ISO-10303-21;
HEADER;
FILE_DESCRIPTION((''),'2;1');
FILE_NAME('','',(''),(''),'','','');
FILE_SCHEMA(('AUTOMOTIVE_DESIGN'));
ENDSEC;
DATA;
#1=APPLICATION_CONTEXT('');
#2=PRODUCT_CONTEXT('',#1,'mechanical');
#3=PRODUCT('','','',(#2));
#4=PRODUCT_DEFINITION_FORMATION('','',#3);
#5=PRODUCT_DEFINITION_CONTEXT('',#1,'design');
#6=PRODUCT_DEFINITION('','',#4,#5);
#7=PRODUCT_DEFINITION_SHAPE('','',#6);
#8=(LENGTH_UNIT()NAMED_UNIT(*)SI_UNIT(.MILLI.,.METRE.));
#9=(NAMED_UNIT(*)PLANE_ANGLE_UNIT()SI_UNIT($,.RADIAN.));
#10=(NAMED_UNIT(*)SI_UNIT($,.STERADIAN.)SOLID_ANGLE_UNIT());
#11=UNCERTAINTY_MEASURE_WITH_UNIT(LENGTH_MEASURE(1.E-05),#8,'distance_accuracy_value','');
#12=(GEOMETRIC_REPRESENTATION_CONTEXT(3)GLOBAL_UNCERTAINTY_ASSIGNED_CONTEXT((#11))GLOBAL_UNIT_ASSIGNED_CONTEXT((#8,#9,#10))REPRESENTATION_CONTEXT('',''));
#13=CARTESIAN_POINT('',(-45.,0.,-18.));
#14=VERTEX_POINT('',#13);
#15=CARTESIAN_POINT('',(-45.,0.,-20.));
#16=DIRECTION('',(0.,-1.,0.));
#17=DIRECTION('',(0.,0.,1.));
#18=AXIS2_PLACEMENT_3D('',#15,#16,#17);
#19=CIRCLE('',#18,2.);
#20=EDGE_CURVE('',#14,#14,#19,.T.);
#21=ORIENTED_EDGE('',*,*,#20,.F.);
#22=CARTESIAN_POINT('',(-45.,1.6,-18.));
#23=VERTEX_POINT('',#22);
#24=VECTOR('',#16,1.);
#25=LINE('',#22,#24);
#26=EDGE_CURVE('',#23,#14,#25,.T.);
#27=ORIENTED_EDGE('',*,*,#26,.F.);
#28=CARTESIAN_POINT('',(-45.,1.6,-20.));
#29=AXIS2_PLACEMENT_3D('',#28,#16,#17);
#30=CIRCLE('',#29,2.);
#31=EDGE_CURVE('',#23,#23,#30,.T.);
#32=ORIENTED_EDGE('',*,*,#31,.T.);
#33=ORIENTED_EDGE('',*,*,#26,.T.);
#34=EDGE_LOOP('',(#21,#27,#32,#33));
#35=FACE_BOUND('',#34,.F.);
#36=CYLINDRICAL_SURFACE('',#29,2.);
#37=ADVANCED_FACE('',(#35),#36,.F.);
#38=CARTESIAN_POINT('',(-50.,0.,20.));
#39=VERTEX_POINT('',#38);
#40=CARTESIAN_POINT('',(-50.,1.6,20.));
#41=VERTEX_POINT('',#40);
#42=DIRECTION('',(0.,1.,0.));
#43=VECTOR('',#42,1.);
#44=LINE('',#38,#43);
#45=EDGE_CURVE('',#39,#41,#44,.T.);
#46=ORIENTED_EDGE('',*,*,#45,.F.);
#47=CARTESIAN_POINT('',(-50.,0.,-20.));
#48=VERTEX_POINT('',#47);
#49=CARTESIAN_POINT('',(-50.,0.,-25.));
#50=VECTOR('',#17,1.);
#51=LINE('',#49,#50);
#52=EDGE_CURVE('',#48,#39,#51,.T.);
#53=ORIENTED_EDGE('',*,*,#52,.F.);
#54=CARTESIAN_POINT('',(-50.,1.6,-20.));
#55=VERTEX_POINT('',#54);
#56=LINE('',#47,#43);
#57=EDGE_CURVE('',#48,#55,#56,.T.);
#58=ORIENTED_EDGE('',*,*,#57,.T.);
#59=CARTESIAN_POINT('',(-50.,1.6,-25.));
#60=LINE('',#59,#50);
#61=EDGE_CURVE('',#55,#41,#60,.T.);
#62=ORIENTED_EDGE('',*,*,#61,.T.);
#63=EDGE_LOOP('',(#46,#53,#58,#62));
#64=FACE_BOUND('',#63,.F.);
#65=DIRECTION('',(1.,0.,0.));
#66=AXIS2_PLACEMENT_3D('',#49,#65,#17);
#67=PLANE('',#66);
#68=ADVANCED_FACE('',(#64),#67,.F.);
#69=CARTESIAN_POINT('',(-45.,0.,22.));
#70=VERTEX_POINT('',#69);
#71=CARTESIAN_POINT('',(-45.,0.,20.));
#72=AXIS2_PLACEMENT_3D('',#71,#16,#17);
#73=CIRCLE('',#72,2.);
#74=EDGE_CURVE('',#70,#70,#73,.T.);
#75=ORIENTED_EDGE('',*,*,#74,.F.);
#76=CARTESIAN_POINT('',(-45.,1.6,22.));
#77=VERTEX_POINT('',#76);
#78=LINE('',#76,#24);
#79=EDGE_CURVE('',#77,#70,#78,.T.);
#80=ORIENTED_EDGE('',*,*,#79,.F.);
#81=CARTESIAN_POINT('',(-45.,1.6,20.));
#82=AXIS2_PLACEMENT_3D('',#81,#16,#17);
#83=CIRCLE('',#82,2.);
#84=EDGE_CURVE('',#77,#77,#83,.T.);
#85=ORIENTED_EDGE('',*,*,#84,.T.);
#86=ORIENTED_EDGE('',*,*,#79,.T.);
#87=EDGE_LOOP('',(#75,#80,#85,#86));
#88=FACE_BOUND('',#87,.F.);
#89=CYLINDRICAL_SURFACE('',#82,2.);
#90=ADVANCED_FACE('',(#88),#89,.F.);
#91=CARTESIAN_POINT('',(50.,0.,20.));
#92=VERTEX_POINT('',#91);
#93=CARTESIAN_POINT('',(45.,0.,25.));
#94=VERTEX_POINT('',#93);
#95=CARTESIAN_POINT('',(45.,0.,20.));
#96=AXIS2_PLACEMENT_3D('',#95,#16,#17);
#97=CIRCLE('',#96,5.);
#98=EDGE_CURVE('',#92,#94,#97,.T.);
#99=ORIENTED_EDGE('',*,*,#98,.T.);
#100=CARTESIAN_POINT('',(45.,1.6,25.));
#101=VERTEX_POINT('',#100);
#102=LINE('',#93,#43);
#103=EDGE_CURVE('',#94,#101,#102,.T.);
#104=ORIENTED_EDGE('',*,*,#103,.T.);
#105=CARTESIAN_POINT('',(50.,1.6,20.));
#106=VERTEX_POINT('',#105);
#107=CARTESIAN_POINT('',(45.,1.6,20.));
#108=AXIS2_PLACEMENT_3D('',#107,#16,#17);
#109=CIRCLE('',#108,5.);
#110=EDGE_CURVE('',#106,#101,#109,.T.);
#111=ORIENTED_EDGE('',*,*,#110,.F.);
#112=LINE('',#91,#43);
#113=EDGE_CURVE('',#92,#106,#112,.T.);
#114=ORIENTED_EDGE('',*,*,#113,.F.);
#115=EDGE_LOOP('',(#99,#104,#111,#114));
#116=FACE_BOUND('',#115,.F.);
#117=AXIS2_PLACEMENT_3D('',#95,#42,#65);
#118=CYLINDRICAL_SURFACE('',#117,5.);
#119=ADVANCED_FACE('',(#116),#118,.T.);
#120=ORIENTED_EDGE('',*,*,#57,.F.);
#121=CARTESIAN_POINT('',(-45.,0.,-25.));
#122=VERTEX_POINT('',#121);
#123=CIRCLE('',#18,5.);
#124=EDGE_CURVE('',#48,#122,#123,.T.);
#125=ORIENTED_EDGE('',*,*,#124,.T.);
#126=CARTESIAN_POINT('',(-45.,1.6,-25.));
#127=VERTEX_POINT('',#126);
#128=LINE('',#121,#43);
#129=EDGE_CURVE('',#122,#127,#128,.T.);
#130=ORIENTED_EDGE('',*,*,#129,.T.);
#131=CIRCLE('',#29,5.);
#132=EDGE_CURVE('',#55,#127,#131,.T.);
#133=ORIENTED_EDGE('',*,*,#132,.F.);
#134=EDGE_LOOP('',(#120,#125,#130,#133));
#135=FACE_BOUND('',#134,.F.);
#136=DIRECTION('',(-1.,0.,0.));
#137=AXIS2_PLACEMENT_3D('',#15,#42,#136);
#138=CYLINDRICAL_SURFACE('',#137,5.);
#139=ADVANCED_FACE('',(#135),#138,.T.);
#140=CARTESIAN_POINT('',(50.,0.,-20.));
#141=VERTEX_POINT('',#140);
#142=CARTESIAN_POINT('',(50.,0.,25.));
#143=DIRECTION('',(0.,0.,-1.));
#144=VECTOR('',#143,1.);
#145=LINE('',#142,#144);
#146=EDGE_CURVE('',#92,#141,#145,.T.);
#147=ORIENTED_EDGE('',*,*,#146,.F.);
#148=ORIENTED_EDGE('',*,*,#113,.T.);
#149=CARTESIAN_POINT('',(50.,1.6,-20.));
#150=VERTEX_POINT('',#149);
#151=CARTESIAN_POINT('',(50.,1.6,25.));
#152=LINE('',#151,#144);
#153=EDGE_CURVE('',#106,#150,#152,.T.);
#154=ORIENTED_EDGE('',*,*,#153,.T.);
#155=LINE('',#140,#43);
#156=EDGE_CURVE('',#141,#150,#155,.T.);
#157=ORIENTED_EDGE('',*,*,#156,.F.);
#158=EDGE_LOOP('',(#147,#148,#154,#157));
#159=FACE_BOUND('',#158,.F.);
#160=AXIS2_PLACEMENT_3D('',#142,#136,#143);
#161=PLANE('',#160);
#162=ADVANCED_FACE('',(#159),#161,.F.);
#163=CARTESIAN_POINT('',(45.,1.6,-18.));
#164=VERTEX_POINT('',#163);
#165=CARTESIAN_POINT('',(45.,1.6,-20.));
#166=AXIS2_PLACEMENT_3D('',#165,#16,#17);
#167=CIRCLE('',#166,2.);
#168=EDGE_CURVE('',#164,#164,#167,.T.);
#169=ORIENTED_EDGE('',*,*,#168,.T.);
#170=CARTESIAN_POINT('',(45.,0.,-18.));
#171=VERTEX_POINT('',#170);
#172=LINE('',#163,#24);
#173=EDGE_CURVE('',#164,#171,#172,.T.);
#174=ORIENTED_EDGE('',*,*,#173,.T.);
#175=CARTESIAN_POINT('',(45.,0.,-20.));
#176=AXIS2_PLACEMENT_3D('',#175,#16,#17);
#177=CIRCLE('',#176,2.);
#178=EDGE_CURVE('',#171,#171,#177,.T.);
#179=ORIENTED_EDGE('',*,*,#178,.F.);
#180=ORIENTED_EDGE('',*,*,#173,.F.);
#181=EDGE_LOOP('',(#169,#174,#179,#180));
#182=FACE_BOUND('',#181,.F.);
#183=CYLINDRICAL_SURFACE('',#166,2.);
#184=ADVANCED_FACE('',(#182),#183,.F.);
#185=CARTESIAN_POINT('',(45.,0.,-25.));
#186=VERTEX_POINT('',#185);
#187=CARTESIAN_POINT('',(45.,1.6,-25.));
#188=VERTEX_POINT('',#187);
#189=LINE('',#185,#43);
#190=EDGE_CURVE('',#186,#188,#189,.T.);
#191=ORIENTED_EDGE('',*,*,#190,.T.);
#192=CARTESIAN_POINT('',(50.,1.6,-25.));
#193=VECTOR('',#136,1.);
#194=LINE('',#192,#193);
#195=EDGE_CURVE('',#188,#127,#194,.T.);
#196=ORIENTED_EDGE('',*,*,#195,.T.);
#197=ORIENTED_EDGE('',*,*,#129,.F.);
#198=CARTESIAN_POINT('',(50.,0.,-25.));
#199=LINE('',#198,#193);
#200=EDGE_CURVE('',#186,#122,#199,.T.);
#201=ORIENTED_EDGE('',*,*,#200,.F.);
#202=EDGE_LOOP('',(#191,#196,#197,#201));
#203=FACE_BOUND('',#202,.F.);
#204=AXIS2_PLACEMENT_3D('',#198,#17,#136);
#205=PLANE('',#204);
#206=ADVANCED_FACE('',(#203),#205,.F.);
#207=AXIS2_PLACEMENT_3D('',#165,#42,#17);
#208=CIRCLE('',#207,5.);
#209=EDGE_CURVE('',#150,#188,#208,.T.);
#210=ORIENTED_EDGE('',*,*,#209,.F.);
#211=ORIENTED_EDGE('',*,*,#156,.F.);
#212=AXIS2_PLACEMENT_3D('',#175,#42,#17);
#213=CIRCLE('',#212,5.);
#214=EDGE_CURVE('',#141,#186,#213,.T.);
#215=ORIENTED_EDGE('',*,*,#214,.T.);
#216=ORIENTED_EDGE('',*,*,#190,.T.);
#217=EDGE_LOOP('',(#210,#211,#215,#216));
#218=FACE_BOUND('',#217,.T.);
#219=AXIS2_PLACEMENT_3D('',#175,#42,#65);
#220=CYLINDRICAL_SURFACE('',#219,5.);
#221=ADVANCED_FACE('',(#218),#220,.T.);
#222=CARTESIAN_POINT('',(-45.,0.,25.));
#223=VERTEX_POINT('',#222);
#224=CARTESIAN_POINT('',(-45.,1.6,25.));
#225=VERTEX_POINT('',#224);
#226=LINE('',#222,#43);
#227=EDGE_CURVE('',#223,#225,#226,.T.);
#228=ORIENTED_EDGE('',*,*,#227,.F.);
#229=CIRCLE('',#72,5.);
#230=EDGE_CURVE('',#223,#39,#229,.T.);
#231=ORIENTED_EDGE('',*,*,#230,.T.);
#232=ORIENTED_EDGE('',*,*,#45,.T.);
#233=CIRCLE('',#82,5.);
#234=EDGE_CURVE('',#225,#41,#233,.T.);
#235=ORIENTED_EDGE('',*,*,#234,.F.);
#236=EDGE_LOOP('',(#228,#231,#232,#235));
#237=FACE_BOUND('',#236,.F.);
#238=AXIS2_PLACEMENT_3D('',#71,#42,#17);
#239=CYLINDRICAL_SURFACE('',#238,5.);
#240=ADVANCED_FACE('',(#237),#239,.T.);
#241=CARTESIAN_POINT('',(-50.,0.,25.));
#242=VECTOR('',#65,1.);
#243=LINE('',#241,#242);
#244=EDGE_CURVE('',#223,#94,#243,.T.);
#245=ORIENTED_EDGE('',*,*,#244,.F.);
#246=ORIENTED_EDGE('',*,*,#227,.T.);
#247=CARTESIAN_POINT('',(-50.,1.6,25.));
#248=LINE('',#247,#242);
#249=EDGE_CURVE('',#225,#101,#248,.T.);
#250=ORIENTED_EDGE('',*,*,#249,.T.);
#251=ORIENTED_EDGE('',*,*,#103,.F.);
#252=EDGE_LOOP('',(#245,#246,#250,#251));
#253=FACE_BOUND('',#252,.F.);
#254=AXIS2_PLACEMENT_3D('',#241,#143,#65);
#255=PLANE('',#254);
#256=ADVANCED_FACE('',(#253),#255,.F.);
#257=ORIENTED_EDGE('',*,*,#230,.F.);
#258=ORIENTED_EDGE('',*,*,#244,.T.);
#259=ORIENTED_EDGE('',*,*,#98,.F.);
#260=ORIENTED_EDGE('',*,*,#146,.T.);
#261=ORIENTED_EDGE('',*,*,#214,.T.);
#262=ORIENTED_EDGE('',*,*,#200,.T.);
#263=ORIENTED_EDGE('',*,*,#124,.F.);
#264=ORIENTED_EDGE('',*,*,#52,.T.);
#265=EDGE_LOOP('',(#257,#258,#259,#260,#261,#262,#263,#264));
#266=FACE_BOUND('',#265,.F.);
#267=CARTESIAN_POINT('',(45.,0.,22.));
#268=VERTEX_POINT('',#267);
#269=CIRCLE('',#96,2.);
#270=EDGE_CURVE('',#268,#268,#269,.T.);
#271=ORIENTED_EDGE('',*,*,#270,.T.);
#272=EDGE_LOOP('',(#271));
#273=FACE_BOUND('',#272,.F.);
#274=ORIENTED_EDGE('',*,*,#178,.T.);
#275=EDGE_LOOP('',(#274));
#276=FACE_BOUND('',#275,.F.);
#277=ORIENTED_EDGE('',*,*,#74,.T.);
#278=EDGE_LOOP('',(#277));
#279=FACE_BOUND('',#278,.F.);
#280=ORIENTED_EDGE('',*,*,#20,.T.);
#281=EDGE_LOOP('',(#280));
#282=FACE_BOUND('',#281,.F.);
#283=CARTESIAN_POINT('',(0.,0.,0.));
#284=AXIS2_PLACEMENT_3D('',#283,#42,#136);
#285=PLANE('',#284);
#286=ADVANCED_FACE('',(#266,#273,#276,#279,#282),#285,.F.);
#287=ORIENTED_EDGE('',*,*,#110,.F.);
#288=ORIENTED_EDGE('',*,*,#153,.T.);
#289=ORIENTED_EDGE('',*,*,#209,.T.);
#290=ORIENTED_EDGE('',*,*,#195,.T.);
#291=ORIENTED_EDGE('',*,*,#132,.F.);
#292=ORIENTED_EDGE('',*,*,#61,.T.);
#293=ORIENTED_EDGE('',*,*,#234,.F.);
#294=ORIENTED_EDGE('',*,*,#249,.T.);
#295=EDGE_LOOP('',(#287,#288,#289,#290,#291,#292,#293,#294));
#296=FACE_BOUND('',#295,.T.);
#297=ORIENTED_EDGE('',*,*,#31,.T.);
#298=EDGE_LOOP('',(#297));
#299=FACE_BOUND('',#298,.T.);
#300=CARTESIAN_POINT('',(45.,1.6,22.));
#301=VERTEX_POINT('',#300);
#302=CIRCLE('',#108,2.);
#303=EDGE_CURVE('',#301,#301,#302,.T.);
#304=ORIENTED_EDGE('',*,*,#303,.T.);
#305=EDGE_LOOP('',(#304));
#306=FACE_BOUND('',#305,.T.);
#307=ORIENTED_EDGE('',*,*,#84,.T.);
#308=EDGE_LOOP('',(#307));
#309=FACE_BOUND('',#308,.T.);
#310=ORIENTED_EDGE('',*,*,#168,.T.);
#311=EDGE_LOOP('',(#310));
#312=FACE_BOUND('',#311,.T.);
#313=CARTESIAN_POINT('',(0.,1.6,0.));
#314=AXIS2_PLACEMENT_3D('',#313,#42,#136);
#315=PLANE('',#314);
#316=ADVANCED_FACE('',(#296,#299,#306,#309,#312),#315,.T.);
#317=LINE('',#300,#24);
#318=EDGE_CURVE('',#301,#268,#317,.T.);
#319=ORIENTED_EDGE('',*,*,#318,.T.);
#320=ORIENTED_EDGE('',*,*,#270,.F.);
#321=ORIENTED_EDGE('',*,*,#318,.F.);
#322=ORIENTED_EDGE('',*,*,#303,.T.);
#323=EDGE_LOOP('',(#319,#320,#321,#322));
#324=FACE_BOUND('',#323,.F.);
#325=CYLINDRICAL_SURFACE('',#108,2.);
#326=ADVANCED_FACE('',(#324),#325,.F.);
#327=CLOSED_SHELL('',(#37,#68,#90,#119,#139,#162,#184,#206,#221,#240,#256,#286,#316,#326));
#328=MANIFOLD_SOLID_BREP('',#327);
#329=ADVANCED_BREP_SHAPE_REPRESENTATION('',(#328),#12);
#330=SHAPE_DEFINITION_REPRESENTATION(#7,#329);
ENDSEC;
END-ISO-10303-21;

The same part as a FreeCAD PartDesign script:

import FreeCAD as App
import Part
import Sketcher

V = App.Vector


def edges_at(feature, points):
    """Names of the edges that pass closest to the given points."""
    edges = feature.Shape.Edges
    near = lambda p: min(range(len(edges)), key=lambda i: edges[i].distToShape(Part.Vertex(*p))[0])
    return sorted({f"Edge{near(p) + 1}" for p in points})


def add_polygon(sketch, points):
    """Adds a closed chain of lines whose ends are joined by coincident constraints."""
    first, n = sketch.GeometryCount, len(points)
    for a, b in zip(points, points[1:] + points[:1]):
        sketch.addGeometry(Part.LineSegment(App.Vector(*a, 0), App.Vector(*b, 0)), False)
    for i in range(n):
        sketch.addConstraint(Sketcher.Constraint("Coincident", first + i, 2, first + (i + 1) % n, 1))

doc = App.newDocument("Part")
body = doc.addObject("PartDesign::Body", "Body")

sketch1 = doc.addObject("Sketcher::SketchObject", "Sketch")
body.addObject(sketch1)
sketch1.AttachmentSupport = (doc.XZ_Plane, [""])
sketch1.MapMode = "FlatFace"
add_polygon(sketch1, [(50, 25), (50, -25), (-50, -25), (-50, 25)])
sketch1.addConstraint([
    Sketcher.Constraint("Vertical", 0),
    Sketcher.Constraint("Horizontal", 1),
    Sketcher.Constraint("Vertical", 2),
    Sketcher.Constraint("Horizontal", 3),
    Sketcher.Constraint("Symmetric", 0, 2, 2, 2, -1, 1),
    Sketcher.Constraint("DistanceX", 1, 2, 1, 1, 100.0),
    Sketcher.Constraint("DistanceY", 0, 2, 0, 1, 50.0),
])
pad1 = doc.addObject("PartDesign::Pad", "Pad")
body.addObject(pad1)
pad1.Profile = sketch1
pad1.Length = 1.6
pad1.Reversed = True
doc.recompute()

fillet = doc.addObject("PartDesign::Fillet", "Fillet")
body.addObject(fillet)
fillet.Base = (pad1, edges_at(pad1, [
    (50, 0.8, 25),
    (-50, 0.8, 25),
    (-50, 0.8, -25),
    (50, 0.8, -25),
]))
fillet.Radius = 5

sketch2 = doc.addObject("Sketcher::SketchObject", "Sketch001")
body.addObject(sketch2)
sketch2.AttachmentSupport = (doc.XZ_Plane, [""])
sketch2.MapMode = "FlatFace"
sketch2.AttachmentOffset = App.Placement(V(0, 0, -1.6), App.Rotation())
sketch2.addGeometry([
    Part.Circle(V(-45, -20, 0), V(0, 0, 1), 2),
    Part.Circle(V(-45, 20, 0), V(0, 0, 1), 2),
    Part.Circle(V(45, 20, 0), V(0, 0, 1), 2),
    Part.Circle(V(45, -20, 0), V(0, 0, 1), 2),
], False)
sketch2.addConstraint([
    Sketcher.Constraint("Equal", 0, 1),
    Sketcher.Constraint("Equal", 1, 2),
    Sketcher.Constraint("Equal", 2, 3),
    Sketcher.Constraint("Symmetric", 0, 3, 2, 3, -1, 1),
    Sketcher.Constraint("Symmetric", 1, 3, 3, 3, -1, 1),
    Sketcher.Constraint("Symmetric", 1, 3, 2, 3, -2),
    Sketcher.Constraint("Diameter", 0, 4.0),
    Sketcher.Constraint("DistanceX", 0, 3, -1, 1, 45.0),
    Sketcher.Constraint("DistanceY", 0, 3, -1, 1, 20.0),
])
doc.recompute()
hole = doc.addObject("PartDesign::Hole", "Hole")
body.addObject(hole)
hole.Profile = sketch2
hole.ThreadType = "None"
hole.Diameter = 4
hole.DepthType = "ThroughAll"
hole.Reversed = True

doc.recompute()
